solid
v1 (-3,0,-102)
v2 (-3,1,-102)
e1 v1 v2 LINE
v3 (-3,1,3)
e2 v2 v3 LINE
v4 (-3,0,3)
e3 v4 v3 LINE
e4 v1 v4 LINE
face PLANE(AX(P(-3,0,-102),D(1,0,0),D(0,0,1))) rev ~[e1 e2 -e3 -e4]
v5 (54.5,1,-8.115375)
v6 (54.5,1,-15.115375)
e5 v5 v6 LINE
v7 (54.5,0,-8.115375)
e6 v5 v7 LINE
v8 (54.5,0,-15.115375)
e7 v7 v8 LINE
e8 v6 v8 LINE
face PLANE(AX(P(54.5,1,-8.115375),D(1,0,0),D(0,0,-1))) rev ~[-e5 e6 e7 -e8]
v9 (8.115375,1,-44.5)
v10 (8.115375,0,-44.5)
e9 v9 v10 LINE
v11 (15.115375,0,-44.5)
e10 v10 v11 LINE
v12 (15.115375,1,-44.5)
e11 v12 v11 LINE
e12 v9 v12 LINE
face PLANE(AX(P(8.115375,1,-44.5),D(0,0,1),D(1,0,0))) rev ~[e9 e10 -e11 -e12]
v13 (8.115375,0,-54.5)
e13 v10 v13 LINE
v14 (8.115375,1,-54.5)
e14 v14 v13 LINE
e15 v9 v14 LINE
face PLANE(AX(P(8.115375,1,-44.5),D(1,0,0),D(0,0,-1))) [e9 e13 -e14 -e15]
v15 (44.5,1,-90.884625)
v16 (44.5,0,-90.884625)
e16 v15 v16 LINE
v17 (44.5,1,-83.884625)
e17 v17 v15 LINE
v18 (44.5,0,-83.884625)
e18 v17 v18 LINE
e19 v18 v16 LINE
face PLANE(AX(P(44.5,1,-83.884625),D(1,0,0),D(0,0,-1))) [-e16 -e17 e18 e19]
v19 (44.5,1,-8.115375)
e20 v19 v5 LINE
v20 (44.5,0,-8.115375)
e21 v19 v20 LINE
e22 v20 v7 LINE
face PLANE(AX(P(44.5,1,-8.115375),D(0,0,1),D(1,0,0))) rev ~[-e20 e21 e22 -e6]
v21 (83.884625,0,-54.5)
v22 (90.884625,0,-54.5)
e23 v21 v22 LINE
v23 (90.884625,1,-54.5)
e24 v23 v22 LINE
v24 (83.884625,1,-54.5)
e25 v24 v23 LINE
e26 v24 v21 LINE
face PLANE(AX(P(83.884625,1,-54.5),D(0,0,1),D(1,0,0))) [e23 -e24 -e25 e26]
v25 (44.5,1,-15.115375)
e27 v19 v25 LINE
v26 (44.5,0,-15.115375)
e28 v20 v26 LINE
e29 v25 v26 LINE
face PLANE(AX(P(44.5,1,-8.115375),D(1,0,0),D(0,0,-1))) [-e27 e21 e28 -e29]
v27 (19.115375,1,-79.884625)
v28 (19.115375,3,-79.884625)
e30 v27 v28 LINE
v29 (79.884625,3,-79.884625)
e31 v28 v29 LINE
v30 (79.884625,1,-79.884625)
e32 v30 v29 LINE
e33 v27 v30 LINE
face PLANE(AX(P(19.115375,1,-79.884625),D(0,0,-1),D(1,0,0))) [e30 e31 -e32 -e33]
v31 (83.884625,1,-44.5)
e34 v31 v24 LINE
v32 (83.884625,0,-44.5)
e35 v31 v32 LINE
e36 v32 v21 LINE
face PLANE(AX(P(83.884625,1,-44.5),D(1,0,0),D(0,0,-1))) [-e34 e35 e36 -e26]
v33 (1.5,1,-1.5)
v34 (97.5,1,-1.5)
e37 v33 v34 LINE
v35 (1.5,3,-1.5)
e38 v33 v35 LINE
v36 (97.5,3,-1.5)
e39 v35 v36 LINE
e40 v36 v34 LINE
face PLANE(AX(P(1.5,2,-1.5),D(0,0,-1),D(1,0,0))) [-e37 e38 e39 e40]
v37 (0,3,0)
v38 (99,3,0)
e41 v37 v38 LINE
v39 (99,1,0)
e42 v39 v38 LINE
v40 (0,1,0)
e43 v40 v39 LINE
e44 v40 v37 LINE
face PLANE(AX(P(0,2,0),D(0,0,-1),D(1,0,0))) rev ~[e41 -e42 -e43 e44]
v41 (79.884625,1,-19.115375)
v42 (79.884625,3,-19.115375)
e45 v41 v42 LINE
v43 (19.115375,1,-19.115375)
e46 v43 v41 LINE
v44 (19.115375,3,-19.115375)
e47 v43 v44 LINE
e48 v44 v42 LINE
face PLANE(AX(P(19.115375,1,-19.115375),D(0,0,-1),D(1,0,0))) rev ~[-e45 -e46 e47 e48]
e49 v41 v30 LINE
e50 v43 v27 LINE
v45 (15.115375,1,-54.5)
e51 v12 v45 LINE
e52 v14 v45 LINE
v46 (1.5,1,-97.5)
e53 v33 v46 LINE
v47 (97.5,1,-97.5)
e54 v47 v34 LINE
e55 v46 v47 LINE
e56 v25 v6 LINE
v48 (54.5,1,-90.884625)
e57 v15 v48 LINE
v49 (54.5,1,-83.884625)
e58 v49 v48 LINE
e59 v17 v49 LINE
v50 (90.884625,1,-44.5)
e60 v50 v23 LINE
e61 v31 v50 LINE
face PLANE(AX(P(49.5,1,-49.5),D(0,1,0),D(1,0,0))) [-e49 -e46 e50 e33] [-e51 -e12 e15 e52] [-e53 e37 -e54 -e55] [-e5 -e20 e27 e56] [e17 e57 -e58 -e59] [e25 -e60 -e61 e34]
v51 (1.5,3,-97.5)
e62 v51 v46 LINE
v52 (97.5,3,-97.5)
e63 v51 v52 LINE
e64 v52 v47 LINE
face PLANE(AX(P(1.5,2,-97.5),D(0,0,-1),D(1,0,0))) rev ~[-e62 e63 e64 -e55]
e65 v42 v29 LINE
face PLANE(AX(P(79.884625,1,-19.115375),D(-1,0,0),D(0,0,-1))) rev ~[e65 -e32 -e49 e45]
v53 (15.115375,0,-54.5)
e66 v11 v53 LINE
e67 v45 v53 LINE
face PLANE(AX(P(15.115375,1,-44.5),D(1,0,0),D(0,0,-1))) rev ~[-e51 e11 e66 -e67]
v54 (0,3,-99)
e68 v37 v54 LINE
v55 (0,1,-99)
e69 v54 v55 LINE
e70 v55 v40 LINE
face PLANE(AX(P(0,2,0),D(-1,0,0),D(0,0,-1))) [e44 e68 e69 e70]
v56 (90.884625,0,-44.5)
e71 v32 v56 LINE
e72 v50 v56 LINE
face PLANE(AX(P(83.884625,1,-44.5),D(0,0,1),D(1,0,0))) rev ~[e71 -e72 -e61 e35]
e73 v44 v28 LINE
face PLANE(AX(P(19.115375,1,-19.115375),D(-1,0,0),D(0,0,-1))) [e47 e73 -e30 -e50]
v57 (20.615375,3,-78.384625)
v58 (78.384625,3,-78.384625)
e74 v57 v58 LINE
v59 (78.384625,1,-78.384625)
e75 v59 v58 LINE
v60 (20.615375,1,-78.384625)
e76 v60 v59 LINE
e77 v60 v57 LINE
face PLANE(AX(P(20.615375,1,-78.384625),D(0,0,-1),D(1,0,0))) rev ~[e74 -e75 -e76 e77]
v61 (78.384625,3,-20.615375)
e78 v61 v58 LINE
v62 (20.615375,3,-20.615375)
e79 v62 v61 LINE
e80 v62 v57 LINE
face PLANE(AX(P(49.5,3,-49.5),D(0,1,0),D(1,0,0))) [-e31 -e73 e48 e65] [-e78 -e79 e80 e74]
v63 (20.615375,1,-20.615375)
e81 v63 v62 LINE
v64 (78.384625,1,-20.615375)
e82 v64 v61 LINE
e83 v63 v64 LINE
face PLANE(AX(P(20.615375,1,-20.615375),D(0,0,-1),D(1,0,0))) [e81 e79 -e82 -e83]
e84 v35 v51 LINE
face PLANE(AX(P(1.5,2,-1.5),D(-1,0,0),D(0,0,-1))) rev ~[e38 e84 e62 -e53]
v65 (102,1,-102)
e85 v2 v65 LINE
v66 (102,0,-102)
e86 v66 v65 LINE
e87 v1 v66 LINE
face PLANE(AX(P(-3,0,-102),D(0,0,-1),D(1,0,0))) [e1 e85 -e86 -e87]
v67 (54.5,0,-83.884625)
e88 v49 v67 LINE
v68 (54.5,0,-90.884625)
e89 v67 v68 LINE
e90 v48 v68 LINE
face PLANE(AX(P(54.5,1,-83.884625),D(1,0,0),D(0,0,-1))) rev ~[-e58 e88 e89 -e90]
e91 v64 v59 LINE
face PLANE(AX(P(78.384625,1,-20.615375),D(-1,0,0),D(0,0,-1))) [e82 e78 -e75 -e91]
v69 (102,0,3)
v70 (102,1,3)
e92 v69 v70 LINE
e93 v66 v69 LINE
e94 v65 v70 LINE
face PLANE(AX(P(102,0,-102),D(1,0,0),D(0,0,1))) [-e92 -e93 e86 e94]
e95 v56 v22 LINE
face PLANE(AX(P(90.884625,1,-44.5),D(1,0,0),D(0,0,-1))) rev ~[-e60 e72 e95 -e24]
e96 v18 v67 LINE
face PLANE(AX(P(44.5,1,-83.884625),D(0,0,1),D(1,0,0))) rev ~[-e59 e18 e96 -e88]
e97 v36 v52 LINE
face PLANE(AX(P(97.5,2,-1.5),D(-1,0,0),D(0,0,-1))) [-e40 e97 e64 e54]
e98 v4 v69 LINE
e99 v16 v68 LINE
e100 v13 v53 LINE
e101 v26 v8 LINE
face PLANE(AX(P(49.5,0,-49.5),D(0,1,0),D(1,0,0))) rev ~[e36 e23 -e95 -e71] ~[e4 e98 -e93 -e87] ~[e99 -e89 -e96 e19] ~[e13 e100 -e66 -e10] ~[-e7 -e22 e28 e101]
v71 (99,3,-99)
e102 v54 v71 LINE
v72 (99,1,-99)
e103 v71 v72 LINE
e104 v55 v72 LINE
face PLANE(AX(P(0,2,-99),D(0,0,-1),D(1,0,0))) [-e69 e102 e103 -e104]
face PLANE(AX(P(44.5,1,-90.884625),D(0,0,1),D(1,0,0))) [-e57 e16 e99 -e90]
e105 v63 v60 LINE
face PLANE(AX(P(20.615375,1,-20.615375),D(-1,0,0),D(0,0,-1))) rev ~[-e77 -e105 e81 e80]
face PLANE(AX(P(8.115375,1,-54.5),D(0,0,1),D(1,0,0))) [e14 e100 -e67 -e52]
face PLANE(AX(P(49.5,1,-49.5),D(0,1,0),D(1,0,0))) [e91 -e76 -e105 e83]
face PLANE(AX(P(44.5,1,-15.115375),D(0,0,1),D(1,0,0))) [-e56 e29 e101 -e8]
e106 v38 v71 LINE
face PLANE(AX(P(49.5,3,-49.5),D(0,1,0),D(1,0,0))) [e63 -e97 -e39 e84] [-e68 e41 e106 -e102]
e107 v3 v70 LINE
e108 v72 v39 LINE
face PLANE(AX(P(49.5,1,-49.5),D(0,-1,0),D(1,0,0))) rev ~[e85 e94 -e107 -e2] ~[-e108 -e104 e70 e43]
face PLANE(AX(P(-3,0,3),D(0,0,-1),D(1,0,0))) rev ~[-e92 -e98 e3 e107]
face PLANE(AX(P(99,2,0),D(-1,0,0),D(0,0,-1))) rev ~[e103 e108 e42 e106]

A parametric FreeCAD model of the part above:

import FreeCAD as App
import Part
import Sketcher
from FreeCAD import Vector


def add_polygon(sketch, points):
    """Adds a closed chain of lines whose ends are joined by coincident constraints."""
    first, n = sketch.GeometryCount, len(points)
    for a, b in zip(points, points[1:] + points[:1]):
        sketch.addGeometry(Part.LineSegment(App.Vector(*a, 0), App.Vector(*b, 0)), False)
    for i in range(n):
        sketch.addConstraint(Sketcher.Constraint("Coincident", first + i, 2, first + (i + 1) % n, 1))

doc = App.newDocument("Part")
body = doc.addObject("PartDesign::Body", "Body")

sketch1 = body.newObject("Sketcher::SketchObject", "Sketch")
sketch1.AttachmentSupport = (doc.getObject("XZ_Plane"), [""])
sketch1.MapMode = "FlatFace"
add_polygon(sketch1, [(0, -99), (0, 0), (99, 0), (99, -99)])
add_polygon(sketch1, [(98, -2), (2, -2), (2, -98), (98, -98)])
sketch1.addConstraint([
    Sketcher.Constraint("Vertical", 0),
    Sketcher.Constraint("Horizontal", 1),
    Sketcher.Constraint("Vertical", 2),
    Sketcher.Constraint("Horizontal", 3),
    Sketcher.Constraint("Horizontal", 4),
    Sketcher.Constraint("Vertical", 5),
    Sketcher.Constraint("Horizontal", 6),
    Sketcher.Constraint("Vertical", 7),
    Sketcher.Constraint("Coincident", 0, 2, -1, 1),
    Sketcher.Constraint("Equal", 3, 0),
    Sketcher.Constraint("Equal", 6, 5),
    Sketcher.Constraint("DistanceX", 1, 1, 1, 2, 99.0),
    Sketcher.Constraint("DistanceX", 4, 2, 4, 1, 96.0),
    Sketcher.Constraint("DistanceX", -1, 1, 4, 2, 1.5),
    Sketcher.Constraint("DistanceY", 4, 2, -1, 1, 1.5),
])
pad1 = body.newObject("PartDesign::Pad", "Pad")
pad1.Profile = sketch1
pad1.Length = 2
pad1.Reversed = True

sketch2 = body.newObject("Sketcher::SketchObject", "Sketch001")
sketch2.AttachmentSupport = (doc.getObject("XZ_Plane"), [""])
sketch2.MapMode = "FlatFace"
add_polygon(sketch2, [(2, -54), (98, -54), (98, -44), (2, -44)])
add_polygon(sketch2, [(2, -63), (2, -72), (98, -72), (98, -63)])
add_polygon(sketch2, [(2, -80), (2, -89), (98, -89), (98, -80)])
add_polygon(sketch2, [(2, -27), (2, -36), (98, -36), (98, -27)])
add_polygon(sketch2, [(2, -10), (2, -19), (98, -19), (98, -10)])
sketch2.addConstraint([
    Sketcher.Constraint("Horizontal", 0),
    Sketcher.Constraint("Vertical", 1),
    Sketcher.Constraint("Horizontal", 2),
    Sketcher.Constraint("Vertical", 3),
    Sketcher.Constraint("Vertical", 4),
    Sketcher.Constraint("Horizontal", 5),
    Sketcher.Constraint("Vertical", 6),
    Sketcher.Constraint("Horizontal", 7),
    Sketcher.Constraint("Vertical", 8),
    Sketcher.Constraint("Horizontal", 9),
    Sketcher.Constraint("Vertical", 10),
    Sketcher.Constraint("Horizontal", 11),
    Sketcher.Constraint("Vertical", 12),
    Sketcher.Constraint("Horizontal", 13),
    Sketcher.Constraint("Vertical", 14),
    Sketcher.Constraint("Horizontal", 15),
    Sketcher.Constraint("Vertical", 16),
    Sketcher.Constraint("Horizontal", 17),
    Sketcher.Constraint("Vertical", 18),
    Sketcher.Constraint("Horizontal", 19),
    Sketcher.Constraint("Vertical", 3, 2, 4, 2),
    Sketcher.Constraint("Vertical", 1, 2, 5, 2),
    Sketcher.Constraint("Vertical", 7, 2, 8, 2),
    Sketcher.Constraint("Vertical", 6, 2, 9, 2),
    Sketcher.Constraint("Vertical", 11, 2, 12, 2),
    Sketcher.Constraint("Vertical", 10, 2, 13, 2),
    Sketcher.Constraint("Vertical", 15, 2, 16, 2),
    Sketcher.Constraint("Vertical", 14, 2, 17, 2),
    Sketcher.Constraint("Equal", 6, 8),
    Sketcher.Constraint("Equal", 10, 12),
    Sketcher.Constraint("Equal", 14, 16),
    Sketcher.Constraint("DistanceX", 0, 1, 0, 2, 96.0),
    Sketcher.Constraint("DistanceY", 1, 1, 1, 2, 10.0),
    Sketcher.Constraint("DistanceY", 4, 2, 4, 1, 8.6),
    Sketcher.Constraint("DistanceX", -1, 1, 0, 2, 97.5),
    Sketcher.Constraint("DistanceY", 0, 2, -1, 1, 54.5),
    Sketcher.Constraint("DistanceY", 4, 2, -1, 1, 71.7),
    Sketcher.Constraint("DistanceY", 8, 2, -1, 1, 88.9),
    Sketcher.Constraint("DistanceY", 12, 2, -1, 1, 35.9),
    Sketcher.Constraint("DistanceY", 16, 2, -1, 1, 18.7),
])
pad2 = body.newObject("PartDesign::Pad", "Pad001")
pad2.Profile = sketch2
pad2.Length = 1
pad2.Reversed = True

sketch3 = body.newObject("Sketcher::SketchObject", "Sketch002")
sketch3.AttachmentSupport = (doc.getObject("XZ_Plane"), [""])
sketch3.MapMode = "FlatFace"
add_polygon(sketch3, [(-3, 3), (-3, -102), (102, -102), (102, 3)])
add_polygon(sketch3, [(99, -99), (0, -99), (0, 0), (99, 0)])
sketch3.addConstraint([
    Sketcher.Constraint("Vertical", 0),
    Sketcher.Constraint("Horizontal", 1),
    Sketcher.Constraint("Vertical", 2),
    Sketcher.Constraint("Horizontal", 3),
    Sketcher.Constraint("Horizontal", 4),
    Sketcher.Constraint("Vertical", 5),
    Sketcher.Constraint("Horizontal", 6),
    Sketcher.Constraint("Vertical", 7),
    Sketcher.Constraint("Coincident", 5, 2, -1, 1),
    Sketcher.Constraint("Equal", 3, 0),
    Sketcher.Constraint("Equal", 6, 5),
    Sketcher.Constraint("DistanceX", 1, 1, 1, 2, 105.0),
    Sketcher.Constraint("DistanceX", 4, 2, 4, 1, 99.0),
    Sketcher.Constraint("DistanceX", 0, 2, -1, 1, 3.0),
    Sketcher.Constraint("DistanceY", 0, 2, -1, 1, 102.0),
])
pad3 = body.newObject("PartDesign::Pad", "Pad002")
pad3.Profile = sketch3
pad3.Length = 1
pad3.Reversed = True

sketch4 = body.newObject("Sketcher::SketchObject", "Sketch003")
sketch4.AttachmentSupport = (doc.getObject("XZ_Plane"), [""])
sketch4.MapMode = "FlatFace"
sketch4.AttachmentOffset = App.Placement(Vector(0, 0, -1), App.Rotation())
add_polygon(sketch4, [(2, -98), (2, -2), (98, -2), (98, -98)])
sketch4.addConstraint([
    Sketcher.Constraint("Vertical", 0),
    Sketcher.Constraint("Horizontal", 1),
    Sketcher.Constraint("Vertical", 2),
    Sketcher.Constraint("Horizontal", 3),
    Sketcher.Constraint("Equal", 3, 0),
    Sketcher.Constraint("DistanceX", 1, 1, 1, 2, 96.0),
    Sketcher.Constraint("DistanceX", -1, 1, 0, 2, 1.5),
    Sketcher.Constraint("DistanceY", 0, 2, -1, 1, 1.5),
])
pad4 = body.newObject("PartDesign::Pad", "Pad003")
pad4.Profile = sketch4
pad4.Length = 1

sketch5 = body.newObject("Sketcher::SketchObject", "Sketch004")
sketch5.AttachmentSupport = (doc.getObject("XZ_Plane"), [""])
sketch5.MapMode = "FlatFace"
sketch5.AttachmentOffset = App.Placement(Vector(0, 0, -1), App.Rotation())
add_polygon(sketch5, [(19, -80), (19, -19), (80, -19), (80, -80)])
add_polygon(sketch5, [(78, -21), (21, -21), (21, -78), (78, -78)])
sketch5.addConstraint([
    Sketcher.Constraint("Vertical", 0),
    Sketcher.Constraint("Horizontal", 1),
    Sketcher.Constraint("Vertical", 2),
    Sketcher.Constraint("Horizontal", 3),
    Sketcher.Constraint("Horizontal", 4),
    Sketcher.Constraint("Vertical", 5),
    Sketcher.Constraint("Horizontal", 6),
    Sketcher.Constraint("Vertical", 7),
    Sketcher.Constraint("Equal", 3, 0),
    Sketcher.Constraint("Equal", 6, 5),
    Sketcher.Constraint("DistanceX", 0, 2, 4, 2, 1.5),
    Sketcher.Constraint("DistanceY", 4, 2, 0, 2, 1.5),
    Sketcher.Constraint("DistanceY", 3, 2, 5, 2, 1.5),
    Sketcher.Constraint("DistanceX", 1, 1, 1, 2, 60.76925),
    Sketcher.Constraint("DistanceX", -1, 1, 0, 2, 19.115375),
    Sketcher.Constraint("DistanceY", 0, 2, -1, 1, 19.115375),
])
pad5 = body.newObject("PartDesign::Pad", "Pad004")
pad5.Profile = sketch5
pad5.Length = 2
pad5.Reversed = True

sketch6 = body.newObject("Sketcher::SketchObject", "Sketch005")
sketch6.AttachmentSupport = (doc.getObject("XZ_Plane"), [""])
sketch6.MapMode = "FlatFace"
sketch6.AttachmentOffset = App.Placement(Vector(0, 0, -1), App.Rotation())
add_polygon(sketch6, [(44, -15), (44, -8), (54, -8), (54, -15)])
add_polygon(sketch6, [(8, -54), (8, -44), (15, -44), (15, -54)])
add_polygon(sketch6, [(44, -91), (44, -84), (54, -84), (54, -91)])
add_polygon(sketch6, [(84, -54), (84, -44), (91, -44), (91, -54)])
sketch6.addConstraint([
    Sketcher.Constraint("Vertical", 0),
    Sketcher.Constraint("Horizontal", 1),
    Sketcher.Constraint("Vertical", 2),
    Sketcher.Constraint("Horizontal", 3),
    Sketcher.Constraint("Vertical", 4),
    Sketcher.Constraint("Horizontal", 5),
    Sketcher.Constraint("Vertical", 6),
    Sketcher.Constraint("Horizontal", 7),
    Sketcher.Constraint("Vertical", 8),
    Sketcher.Constraint("Horizontal", 9),
    Sketcher.Constraint("Vertical", 10),
    Sketcher.Constraint("Horizontal", 11),
    Sketcher.Constraint("Vertical", 12),
    Sketcher.Constraint("Horizontal", 13),
    Sketcher.Constraint("Vertical", 14),
    Sketcher.Constraint("Horizontal", 15),
    Sketcher.Constraint("Horizontal", 5, 2, 12, 2),
    Sketcher.Constraint("Horizontal", 7, 2, 14, 2),
    Sketcher.Constraint("Vertical", 3, 2, 8, 2),
    Sketcher.Constraint("Vertical", 2, 2, 9, 2),
    Sketcher.Constraint("Equal", 7, 13),
    Sketcher.Constraint("Equal", 15, 0),
    Sketcher.Constraint("Equal", 11, 4),
    Sketcher.Constraint("Equal", 2, 8),
    Sketcher.Constraint("DistanceX", 1, 1, 1, 2, 10.0),
    Sketcher.Constraint("DistanceX", 5, 1, 5, 2, 7.0),
    Sketcher.Constraint("DistanceX", -1, 1, 0, 2, 44.5),
    Sketcher.Constraint("DistanceY", 4, 2, -1, 1, 44.5),
    Sketcher.Constraint("DistanceY", 8, 2, 3, 2, 68.76925),
    Sketcher.Constraint("DistanceY", 0, 2, -1, 1, 8.115375),
    Sketcher.Constraint("DistanceX", -1, 1, 4, 2, 8.115375),
    Sketcher.Constraint("DistanceX", -1, 1, 12, 2, 83.884625),
])
pocket1 = body.newObject("PartDesign::Pocket", "Pocket")
pocket1.Profile = sketch6
pocket1.Length = 65
pocket1.Reversed = True

sketch7 = body.newObject("Sketcher::SketchObject", "Sketch006")
sketch7.AttachmentSupport = (doc.getObject("XZ_Plane"), [""])
sketch7.MapMode = "FlatFace"
sketch7.AttachmentOffset = App.Placement(Vector(0, 0, -2), App.Rotation())
add_polygon(sketch7, [(0, -99), (0, 0), (99, 0), (99, -99)])
add_polygon(sketch7, [(98, -2), (2, -2), (2, -98), (98, -98)])
sketch7.addConstraint([
    Sketcher.Constraint("Vertical", 0),
    Sketcher.Constraint("Horizontal", 1),
    Sketcher.Constraint("Vertical", 2),
    Sketcher.Constraint("Horizontal", 3),
    Sketcher.Constraint("Horizontal", 4),
    Sketcher.Constraint("Vertical", 5),
    Sketcher.Constraint("Horizontal", 6),
    Sketcher.Constraint("Vertical", 7),
    Sketcher.Constraint("Coincident", 0, 2, -1, 1),
    Sketcher.Constraint("Equal", 3, 0),
    Sketcher.Constraint("Equal", 6, 5),
    Sketcher.Constraint("DistanceX", 1, 1, 1, 2, 99.0),
    Sketcher.Constraint("DistanceX", 4, 2, 4, 1, 96.0),
    Sketcher.Constraint("DistanceX", -1, 1, 4, 2, 1.5),
    Sketcher.Constraint("DistanceY", 4, 2, -1, 1, 1.5),
])
pad6 = body.newObject("PartDesign::Pad", "Pad005")
pad6.Profile = sketch7
pad6.Length = 1
pad6.Reversed = True

doc.recompute()
